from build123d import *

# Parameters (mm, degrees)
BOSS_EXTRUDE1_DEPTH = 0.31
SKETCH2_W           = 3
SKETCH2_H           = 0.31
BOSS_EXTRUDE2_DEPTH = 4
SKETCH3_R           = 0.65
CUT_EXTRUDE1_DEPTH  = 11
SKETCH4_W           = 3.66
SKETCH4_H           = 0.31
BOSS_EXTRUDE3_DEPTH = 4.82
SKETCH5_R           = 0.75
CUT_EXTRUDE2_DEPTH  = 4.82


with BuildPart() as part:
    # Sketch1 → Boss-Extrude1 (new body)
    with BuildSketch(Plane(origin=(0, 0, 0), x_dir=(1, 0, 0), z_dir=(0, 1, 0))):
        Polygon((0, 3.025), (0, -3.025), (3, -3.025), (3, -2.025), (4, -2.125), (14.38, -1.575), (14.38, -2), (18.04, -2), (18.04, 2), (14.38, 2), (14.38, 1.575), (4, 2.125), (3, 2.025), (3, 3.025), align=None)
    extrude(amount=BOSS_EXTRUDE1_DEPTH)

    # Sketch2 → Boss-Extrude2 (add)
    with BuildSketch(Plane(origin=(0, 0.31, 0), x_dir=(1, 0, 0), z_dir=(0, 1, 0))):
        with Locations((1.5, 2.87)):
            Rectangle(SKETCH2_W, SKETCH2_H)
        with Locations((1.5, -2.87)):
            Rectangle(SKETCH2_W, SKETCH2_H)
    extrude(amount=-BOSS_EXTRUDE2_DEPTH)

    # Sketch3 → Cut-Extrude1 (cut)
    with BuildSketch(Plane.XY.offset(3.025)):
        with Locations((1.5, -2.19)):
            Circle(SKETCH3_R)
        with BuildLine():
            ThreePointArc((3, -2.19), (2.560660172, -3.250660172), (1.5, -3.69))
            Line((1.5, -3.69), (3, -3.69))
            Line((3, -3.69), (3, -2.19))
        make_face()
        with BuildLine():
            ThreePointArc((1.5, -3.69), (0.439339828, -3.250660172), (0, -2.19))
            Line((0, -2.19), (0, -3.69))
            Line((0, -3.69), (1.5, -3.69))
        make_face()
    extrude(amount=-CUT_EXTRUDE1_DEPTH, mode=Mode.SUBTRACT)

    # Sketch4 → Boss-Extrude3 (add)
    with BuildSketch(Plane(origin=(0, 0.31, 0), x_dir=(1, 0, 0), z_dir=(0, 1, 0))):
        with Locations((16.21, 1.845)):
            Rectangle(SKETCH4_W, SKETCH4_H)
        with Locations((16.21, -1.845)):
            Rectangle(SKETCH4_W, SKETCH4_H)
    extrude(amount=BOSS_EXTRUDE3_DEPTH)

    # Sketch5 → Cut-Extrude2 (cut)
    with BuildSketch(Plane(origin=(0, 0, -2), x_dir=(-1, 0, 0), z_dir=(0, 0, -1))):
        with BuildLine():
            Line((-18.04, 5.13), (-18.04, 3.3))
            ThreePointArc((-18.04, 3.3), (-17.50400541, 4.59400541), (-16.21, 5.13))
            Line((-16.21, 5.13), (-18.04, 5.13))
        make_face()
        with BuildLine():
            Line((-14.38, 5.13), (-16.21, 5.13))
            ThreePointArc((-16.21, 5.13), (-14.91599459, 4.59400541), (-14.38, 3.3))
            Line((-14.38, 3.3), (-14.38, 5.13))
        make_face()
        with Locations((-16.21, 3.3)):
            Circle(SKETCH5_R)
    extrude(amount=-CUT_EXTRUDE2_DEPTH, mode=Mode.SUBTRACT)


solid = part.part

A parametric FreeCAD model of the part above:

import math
import FreeCAD as App
import Part
import Sketcher

doc = App.newDocument("Part")
params = doc.addObject("Spreadsheet::Sheet", "Params")
for row, (alias, value) in enumerate([
    ("sketch1_width", "3 mm"),
    ("sketch1_height", "1 mm"),
    ("sketch1_height2", "4 mm"),
    ("sketch1_width2", "3.66 mm"),
    ("sketch1_height3", "6.05 mm"),
    ("pad1_length", "0.31 mm"),
    ("sketch2_width", "3 mm"),
    ("sketch2_height", "0.31 mm"),
    ("pad2_length", "4 mm"),
    ("sketch3_diameter", "1.3 mm"),
    ("sketch3_radius", "1.5 mm"),
    ("pocket1_length", "11 mm"),
    ("sketch4_width", "3.66 mm"),
    ("sketch4_height", "0.31 mm"),
    ("pad3_length", "4.82 mm"),
    ("sketch5_diameter", "1.5 mm"),
    ("sketch5_radius", "1.83 mm"),
    ("pocket2_length", "4.82 mm"),
], start=1):
    params.set(f"A{row}", alias)
    params.set(f"B{row}", "=" + value)
    params.setAlias(f"B{row}", alias)

body = doc.addObject("PartDesign::Body", "Body")

sketch1 = body.newObject("Sketcher::SketchObject", "Sketch")
sketch1.AttachmentSupport = (doc.getObject("XZ_Plane"), [""])
sketch1.MapMode = "FlatFace"
sketch1.addGeometry([
    Part.LineSegment(App.Vector(0, -3.02, 0), App.Vector(0, 3.02, 0)),
    Part.LineSegment(App.Vector(0, 3.02, 0), App.Vector(3, 3.02, 0)),
    Part.LineSegment(App.Vector(3, 3.02, 0), App.Vector(3, 2.02, 0)),
    Part.LineSegment(App.Vector(3, 2.02, 0), App.Vector(4, 2.12, 0)),
    Part.LineSegment(App.Vector(4, 2.12, 0), App.Vector(14.38, 1.57, 0)),
    Part.LineSegment(App.Vector(14.38, 1.57, 0), App.Vector(14.38, 2, 0)),
    Part.LineSegment(App.Vector(14.38, 2, 0), App.Vector(18.04, 2, 0)),
    Part.LineSegment(App.Vector(18.04, 2, 0), App.Vector(18.04, -2, 0)),
    Part.LineSegment(App.Vector(18.04, -2, 0), App.Vector(14.38, -2, 0)),
    Part.LineSegment(App.Vector(14.38, -2, 0), App.Vector(14.38, -1.57, 0)),
    Part.LineSegment(App.Vector(14.38, -1.57, 0), App.Vector(4, -2.12, 0)),
    Part.LineSegment(App.Vector(4, -2.12, 0), App.Vector(3, -2.02, 0)),
    Part.LineSegment(App.Vector(3, -2.02, 0), App.Vector(3, -3.02, 0)),
    Part.LineSegment(App.Vector(3, -3.02, 0), App.Vector(0, -3.02, 0)),
], False)
sketch1.addConstraint([
    Sketcher.Constraint("Coincident", 0, 2, 1, 1),
    Sketcher.Constraint("Coincident", 1, 2, 2, 1),
    Sketcher.Constraint("Coincident", 2, 2, 3, 1),
    Sketcher.Constraint("Coincident", 3, 2, 4, 1),
    Sketcher.Constraint("Coincident", 4, 2, 5, 1),
    Sketcher.Constraint("Coincident", 5, 2, 6, 1),
    Sketcher.Constraint("Coincident", 6, 2, 7, 1),
    Sketcher.Constraint("Coincident", 7, 2, 8, 1),
    Sketcher.Constraint("Coincident", 8, 2, 9, 1),
    Sketcher.Constraint("Coincident", 9, 2, 10, 1),
    Sketcher.Constraint("Coincident", 10, 2, 11, 1),
    Sketcher.Constraint("Coincident", 11, 2, 12, 1),
    Sketcher.Constraint("Coincident", 12, 2, 13, 1),
    Sketcher.Constraint("Coincident", 13, 2, 0, 1),
    Sketcher.Constraint("Vertical", 0),
    Sketcher.Constraint("Horizontal", 1),
    Sketcher.Constraint("Vertical", 2),
    Sketcher.Constraint("Vertical", 5),
    Sketcher.Constraint("Horizontal", 6),
    Sketcher.Constraint("Vertical", 7),
    Sketcher.Constraint("Horizontal", 8),
    Sketcher.Constraint("Vertical", 9),
    Sketcher.Constraint("Vertical", 12),
    Sketcher.Constraint("Horizontal", 13),
    Sketcher.Constraint("Symmetric", 0, 2, 13, 2, -1, 1),
    Sketcher.Constraint("Symmetric", 5, 2, 8, 2, -1),
    Sketcher.Constraint("Symmetric", 3, 2, 10, 2, -1),
    Sketcher.Constraint("Symmetric", 2, 2, 11, 2, -1),
    Sketcher.Constraint("Equal", 5, 9),
    Sketcher.Constraint("DistanceX", 1, 1, 1, 2, 3.0),
    Sketcher.Constraint("DistanceY", 2, 2, 2, 1, 1.0),
    Sketcher.Constraint("DistanceY", 7, 2, 7, 1, 4.0),
    Sketcher.Constraint("DistanceX", -1, 1, 3, 2, 4.0),
    Sketcher.Constraint("DistanceX", 6, 1, 6, 2, 3.66),
    Sketcher.Constraint("DistanceY", 0, 1, 0, 2, 6.05),
    Sketcher.Constraint("DistanceY", 2, 2, 3, 2, 0.1),
    Sketcher.Constraint("DistanceY", 5, 1, 5, 2, 0.425),
    Sketcher.Constraint("DistanceX", -1, 1, 4, 2, 14.38),
])
sketch1.setExpression("Constraints[29]", "Params.sketch1_width")
sketch1.setExpression("Constraints[30]", "Params.sketch1_height")
sketch1.setExpression("Constraints[31]", "Params.sketch1_height2")
sketch1.setExpression("Constraints[33]", "Params.sketch1_width2")
sketch1.setExpression("Constraints[34]", "Params.sketch1_height3")
pad1 = body.newObject("PartDesign::Pad", "Pad")
pad1.Profile = sketch1
pad1.setExpression("Length", "Params.pad1_length")
pad1.Reversed = True

sketch2 = body.newObject("Sketcher::SketchObject", "Sketch001")
sketch2.AttachmentSupport = (doc.getObject("XZ_Plane"), [""])
sketch2.MapMode = "FlatFace"
sketch2.AttachmentOffset = App.Placement(App.Vector(0, 0, -0.31), App.Rotation())
sketch2.addGeometry([
    Part.LineSegment(App.Vector(0, -3.02, 0), App.Vector(0, -2.71, 0)),
    Part.LineSegment(App.Vector(0, -2.71, 0), App.Vector(3, -2.71, 0)),
    Part.LineSegment(App.Vector(3, -2.71, 0), App.Vector(3, -3.02, 0)),
    Part.LineSegment(App.Vector(3, -3.02, 0), App.Vector(0, -3.02, 0)),
    Part.LineSegment(App.Vector(0, 2.71, 0), App.Vector(0, 3.02, 0)),
    Part.LineSegment(App.Vector(0, 3.02, 0), App.Vector(3, 3.02, 0)),
    Part.LineSegment(App.Vector(3, 3.02, 0), App.Vector(3, 2.71, 0)),
    Part.LineSegment(App.Vector(3, 2.71, 0), App.Vector(0, 2.71, 0)),
], False)
sketch2.addConstraint([
    Sketcher.Constraint("Coincident", 0, 2, 1, 1),
    Sketcher.Constraint("Coincident", 1, 2, 2, 1),
    Sketcher.Constraint("Coincident", 2, 2, 3, 1),
    Sketcher.Constraint("Coincident", 3, 2, 0, 1),
    Sketcher.Constraint("Coincident", 4, 2, 5, 1),
    Sketcher.Constraint("Coincident", 5, 2, 6, 1),
    Sketcher.Constraint("Coincident", 6, 2, 7, 1),
    Sketcher.Constraint("Coincident", 7, 2, 4, 1),
    Sketcher.Constraint("Vertical", 0),
    Sketcher.Constraint("Horizontal", 1),
    Sketcher.Constraint("Vertical", 2),
    Sketcher.Constraint("Horizontal", 3),
    Sketcher.Constraint("Vertical", 4),
    Sketcher.Constraint("Horizontal", 5),
    Sketcher.Constraint("Vertical", 6),
    Sketcher.Constraint("Horizontal", 7),
    Sketcher.Constraint("Symmetric", 3, 2, 4, 2, -1, 1),
    Sketcher.Constraint("Symmetric", 1, 2, 6, 2, -1),
    Sketcher.Constraint("PointOnObject", 0, 2, -2),
    Sketcher.Constraint("DistanceX", 1, 1, 1, 2, 3.0),
    Sketcher.Constraint("DistanceY", 0, 1, 0, 2, 0.31),
    Sketcher.Constraint("DistanceY", 0, 2, 4, 2, 5.74),
])
sketch2.setExpression("Constraints[19]", "Params.sketch2_width")
sketch2.setExpression("Constraints[20]", "Params.sketch2_height")
pad2 = body.newObject("PartDesign::Pad", "Pad001")
pad2.Profile = sketch2
pad2.setExpression("Length", "Params.pad2_length")

sketch3 = body.newObject("Sketcher::SketchObject", "Sketch002")
sketch3.AttachmentSupport = (doc.getObject("XY_Plane"), [""])
sketch3.MapMode = "FlatFace"
sketch3.AttachmentOffset = App.Placement(App.Vector(0, 0, 3.025), App.Rotation())
sketch3.addGeometry([
    Part.Circle(App.Vector(1.5, -2.2, 0), App.Vector(0, 0, 1), 0.7),
    Part.ArcOfCircle(Part.Circle(App.Vector(1.5, -2.2, 0), App.Vector(0, 0, 1), 1.5), math.radians(-90), math.radians(0)),
    Part.LineSegment(App.Vector(1.5, -3.7, 0), App.Vector(3, -3.7, 0)),
    Part.LineSegment(App.Vector(3, -3.7, 0), App.Vector(3, -2.2, 0)),
    Part.ArcOfCircle(Part.Circle(App.Vector(1.5, -2.2, 0), App.Vector(0, 0, 1), 1.5), math.radians(180), math.radians(270)),
    Part.LineSegment(App.Vector(0, -2.2, 0), App.Vector(0, -3.7, 0)),
    Part.LineSegment(App.Vector(0, -3.7, 0), App.Vector(1.5, -3.7, 0)),
], False)
sketch3.addConstraint([
    Sketcher.Constraint("Tangent", 1, 1, 2, 1),
    Sketcher.Constraint("Coincident", 2, 2, 3, 1),
    Sketcher.Constraint("Tangent", 3, 2, 1, 2),
    Sketcher.Constraint("Tangent", 4, 1, 5, 1),
    Sketcher.Constraint("Coincident", 5, 2, 6, 1),
    Sketcher.Constraint("Tangent", 6, 2, 4, 2),
    Sketcher.Constraint("Horizontal", 2),
    Sketcher.Constraint("Vertical", 3),
    Sketcher.Constraint("Vertical", 5),
    Sketcher.Constraint("Horizontal", 6),
    Sketcher.Constraint("Coincident", 1, 3, 0, 3),
    Sketcher.Constraint("Coincident", 4, 3, 0, 3),
    Sketcher.Constraint("Equal", 1, 4),
    Sketcher.Constraint("PointOnObject", 4, 1, -2),
    Sketcher.Constraint("Diameter", 0, 1.3),
    Sketcher.Constraint("Radius", 1, 1.5),
    Sketcher.Constraint("DistanceY", 0, 3, -1, 1, 2.19),
])
sketch3.setExpression("Constraints[14]", "Params.sketch3_diameter")
sketch3.setExpression("Constraints[15]", "Params.sketch3_radius")
pocket1 = body.newObject("PartDesign::Pocket", "Pocket")
pocket1.Profile = sketch3
pocket1.setExpression("Length", "Params.pocket1_length")

sketch4 = body.newObject("Sketcher::SketchObject", "Sketch003")
sketch4.AttachmentSupport = (doc.getObject("XZ_Plane"), [""])
sketch4.MapMode = "FlatFace"
sketch4.AttachmentOffset = App.Placement(App.Vector(0, 0, -0.31), App.Rotation())
sketch4.addGeometry([
    Part.LineSegment(App.Vector(14.38, -2, 0), App.Vector(14.38, -1.69, 0)),
    Part.LineSegment(App.Vector(14.38, -1.69, 0), App.Vector(18.04, -1.69, 0)),
    Part.LineSegment(App.Vector(18.04, -1.69, 0), App.Vector(18.04, -2, 0)),
    Part.LineSegment(App.Vector(18.04, -2, 0), App.Vector(14.38, -2, 0)),
    Part.LineSegment(App.Vector(14.38, 1.69, 0), App.Vector(14.38, 2, 0)),
    Part.LineSegment(App.Vector(14.38, 2, 0), App.Vector(18.04, 2, 0)),
    Part.LineSegment(App.Vector(18.04, 2, 0), App.Vector(18.04, 1.69, 0)),
    Part.LineSegment(App.Vector(18.04, 1.69, 0), App.Vector(14.38, 1.69, 0)),
], False)
sketch4.addConstraint([
    Sketcher.Constraint("Coincident", 0, 2, 1, 1),
    Sketcher.Constraint("Coincident", 1, 2, 2, 1),
    Sketcher.Constraint("Coincident", 2, 2, 3, 1),
    Sketcher.Constraint("Coincident", 3, 2, 0, 1),
    Sketcher.Constraint("Coincident", 4, 2, 5, 1),
    Sketcher.Constraint("Coincident", 5, 2, 6, 1),
    Sketcher.Constraint("Coincident", 6, 2, 7, 1),
    Sketcher.Constraint("Coincident", 7, 2, 4, 1),
    Sketcher.Constraint("Vertical", 0),
    Sketcher.Constraint("Horizontal", 1),
    Sketcher.Constraint("Vertical", 2),
    Sketcher.Constraint("Horizontal", 3),
    Sketcher.Constraint("Vertical", 4),
    Sketcher.Constraint("Horizontal", 5),
    Sketcher.Constraint("Vertical", 6),
    Sketcher.Constraint("Horizontal", 7),
    Sketcher.Constraint("Symmetric", 3, 2, 4, 2, -1),
    Sketcher.Constraint("Symmetric", 1, 2, 6, 2, -1),
    Sketcher.Constraint("DistanceY", 2, 2, -1, 1, 2.0),
    Sketcher.Constraint("DistanceX", 1, 1, 1, 2, 3.66),
    Sketcher.Constraint("DistanceY", 0, 1, 0, 2, 0.31),
    Sketcher.Constraint("DistanceX", -1, 1, 0, 2, 14.38),
])
sketch4.setExpression("Constraints[19]", "Params.sketch4_width")
sketch4.setExpression("Constraints[20]", "Params.sketch4_height")
pad3 = body.newObject("PartDesign::Pad", "Pad002")
pad3.Profile = sketch4
pad3.setExpression("Length", "Params.pad3_length")
pad3.Reversed = True

sketch5 = body.newObject("Sketcher::SketchObject", "Sketch004")
sketch5.AttachmentSupport = (doc.getObject("XY_Plane"), [""])
sketch5.MapMode = "FlatFace"
sketch5.AttachmentOffset = App.Placement(App.Vector(0, 0, -2), App.Rotation())
sketch5.addGeometry([
    Part.LineSegment(App.Vector(18, 5.1, 0), App.Vector(18, 3.3, 0)),
    Part.ArcOfCircle(Part.Circle(App.Vector(16.2, 3.3, 0), App.Vector(0, 0, 1), 1.8), math.radians(0), math.radians(90)),
    Part.LineSegment(App.Vector(16.2, 5.1, 0), App.Vector(18, 5.1, 0)),
    Part.LineSegment(App.Vector(14.4, 5.1, 0), App.Vector(16.2, 5.1, 0)),
    Part.ArcOfCircle(Part.Circle(App.Vector(16.2, 3.3, 0), App.Vector(0, 0, 1), 1.8), math.radians(90), math.radians(180)),
    Part.LineSegment(App.Vector(14.4, 3.3, 0), App.Vector(14.4, 5.1, 0)),
    Part.Circle(App.Vector(16.2, 3.3, 0), App.Vector(0, 0, 1), 0.8),
], False)
sketch5.addConstraint([
    Sketcher.Constraint("Tangent", 0, 2, 1, 1),
    Sketcher.Constraint("Tangent", 1, 2, 2, 1),
    Sketcher.Constraint("Coincident", 2, 2, 0, 1),
    Sketcher.Constraint("Tangent", 3, 2, 4, 1),
    Sketcher.Constraint("Tangent", 4, 2, 5, 1),
    Sketcher.Constraint("Coincident", 5, 2, 3, 1),
    Sketcher.Constraint("Vertical", 0),
    Sketcher.Constraint("Horizontal", 2),
    Sketcher.Constraint("Horizontal", 3),
    Sketcher.Constraint("Vertical", 5),
    Sketcher.Constraint("Coincident", 4, 3, 1, 3),
    Sketcher.Constraint("Coincident", 6, 3, 1, 3),
    Sketcher.Constraint("Equal", 1, 4),
    Sketcher.Constraint("Diameter", 6, 1.5),
    Sketcher.Constraint("Radius", 1, 1.83),
    Sketcher.Constraint("DistanceY", -1, 1, 1, 3, 3.3),
    Sketcher.Constraint("DistanceX", -1, 1, 1, 3, 16.21),
])
sketch5.setExpression("Constraints[13]", "Params.sketch5_diameter")
sketch5.setExpression("Constraints[14]", "Params.sketch5_radius")
pocket2 = body.newObject("PartDesign::Pocket", "Pocket001")
pocket2.Profile = sketch5
pocket2.setExpression("Length", "Params.pocket2_length")
pocket2.Reversed = True

doc.recompute()
